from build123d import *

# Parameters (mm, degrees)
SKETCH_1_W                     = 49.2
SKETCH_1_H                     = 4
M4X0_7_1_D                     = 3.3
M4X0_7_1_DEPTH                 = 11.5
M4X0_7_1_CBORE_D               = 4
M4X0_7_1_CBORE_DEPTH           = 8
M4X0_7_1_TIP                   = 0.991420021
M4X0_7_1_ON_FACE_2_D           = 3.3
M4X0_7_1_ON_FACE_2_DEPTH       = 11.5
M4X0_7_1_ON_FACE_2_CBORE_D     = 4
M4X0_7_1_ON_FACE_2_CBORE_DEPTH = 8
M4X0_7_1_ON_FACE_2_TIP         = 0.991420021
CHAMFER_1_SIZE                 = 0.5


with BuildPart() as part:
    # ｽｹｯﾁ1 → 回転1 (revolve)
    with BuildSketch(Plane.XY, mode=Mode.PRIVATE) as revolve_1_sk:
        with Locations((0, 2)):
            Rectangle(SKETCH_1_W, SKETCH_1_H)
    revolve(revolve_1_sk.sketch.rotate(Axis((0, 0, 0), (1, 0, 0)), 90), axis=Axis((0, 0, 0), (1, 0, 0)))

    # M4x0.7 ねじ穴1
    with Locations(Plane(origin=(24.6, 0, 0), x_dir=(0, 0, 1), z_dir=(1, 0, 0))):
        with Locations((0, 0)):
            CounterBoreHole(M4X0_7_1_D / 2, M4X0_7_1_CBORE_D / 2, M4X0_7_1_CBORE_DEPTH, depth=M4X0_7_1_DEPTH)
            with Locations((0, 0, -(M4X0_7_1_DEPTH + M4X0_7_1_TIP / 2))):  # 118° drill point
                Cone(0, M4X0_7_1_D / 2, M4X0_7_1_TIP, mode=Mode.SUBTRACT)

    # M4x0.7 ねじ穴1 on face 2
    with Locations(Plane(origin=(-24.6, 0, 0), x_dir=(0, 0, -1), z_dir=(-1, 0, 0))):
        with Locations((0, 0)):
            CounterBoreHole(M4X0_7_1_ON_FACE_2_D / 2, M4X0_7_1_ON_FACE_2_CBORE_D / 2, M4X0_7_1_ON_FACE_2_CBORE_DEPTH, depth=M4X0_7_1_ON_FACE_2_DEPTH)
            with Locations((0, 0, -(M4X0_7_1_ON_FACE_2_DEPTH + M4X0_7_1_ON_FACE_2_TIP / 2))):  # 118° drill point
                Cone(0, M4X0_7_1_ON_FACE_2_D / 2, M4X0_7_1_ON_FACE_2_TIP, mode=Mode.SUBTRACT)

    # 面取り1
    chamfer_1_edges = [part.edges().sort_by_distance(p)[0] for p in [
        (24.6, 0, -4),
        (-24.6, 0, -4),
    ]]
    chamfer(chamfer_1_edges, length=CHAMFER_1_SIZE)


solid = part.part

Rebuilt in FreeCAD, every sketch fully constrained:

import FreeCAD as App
import Part
import Sketcher

V = App.Vector


def edges_at(feature, points):
    """Names of the edges that pass closest to the given points."""
    edges = feature.Shape.Edges
    near = lambda p: min(range(len(edges)), key=lambda i: edges[i].distToShape(Part.Vertex(*p))[0])
    return sorted({f"Edge{near(p) + 1}" for p in points})

doc = App.newDocument("Part")
body = doc.addObject("PartDesign::Body", "Body")

sketch1 = body.newObject("Sketcher::SketchObject", "Sketch")
sketch1.AttachmentSupport = (doc.getObject("XY_Plane"), [""])
sketch1.MapMode = "FlatFace"
sketch1.addGeometry(Part.LineSegment(V(-24.6, 4, 0), V(-24.6, 0, 0)), False)
sketch1.addGeometry(Part.LineSegment(V(-24.6, 0, 0), V(24.6, 0, 0)), False)
sketch1.addGeometry(Part.LineSegment(V(24.6, 0, 0), V(24.6, 4, 0)), False)
sketch1.addGeometry(Part.LineSegment(V(24.6, 4, 0), V(-24.6, 4, 0)), False)
sketch1.addConstraint(Sketcher.Constraint("Coincident", 0, 2, 1, 1))
sketch1.addConstraint(Sketcher.Constraint("Coincident", 1, 2, 2, 1))
sketch1.addConstraint(Sketcher.Constraint("Coincident", 2, 2, 3, 1))
sketch1.addConstraint(Sketcher.Constraint("Coincident", 3, 2, 0, 1))
sketch1.addConstraint(Sketcher.Constraint("Vertical", 0))
sketch1.addConstraint(Sketcher.Constraint("Horizontal", 1))
sketch1.addConstraint(Sketcher.Constraint("Vertical", 2))
sketch1.addConstraint(Sketcher.Constraint("Horizontal", 3))
sketch1.addConstraint(Sketcher.Constraint("Symmetric", 0, 2, 1, 2, -1, 1))
sketch1.addConstraint(Sketcher.Constraint("DistanceY", 0, 2, 0, 1, 4.0))
sketch1.addConstraint(Sketcher.Constraint("DistanceX", 1, 1, 1, 2, 49.2))
revolution = body.newObject("PartDesign::Revolution", "Revolution")
revolution.Profile = sketch1
revolution.ReferenceAxis = (sketch1, ["H_Axis"])
revolution.Angle = 360

sketch2 = body.newObject("Sketcher::SketchObject", "Sketch001")
sketch2.AttachmentSupport = (doc.getObject("YZ_Plane"), [""])
sketch2.MapMode = "FlatFace"
sketch2.AttachmentOffset = App.Placement(V(0, 0, 24.6), App.Rotation())
sketch2.addGeometry(Part.Circle(V(0, 0, 0), V(0, 0, 1), 1.65), False)
sketch2.addConstraint(Sketcher.Constraint("Coincident", 0, 3, -1, 1))
sketch2.addConstraint(Sketcher.Constraint("Diameter", 0, 3.3))
doc.recompute()
hole = body.newObject("PartDesign::Hole", "Hole")
hole.Profile = sketch2
hole.ThreadType = "None"
hole.Diameter = 3.3
hole.DepthType = "Dimension"
hole.Depth = 11.5
hole.DrillPoint = "Angled"
hole.DrillPointAngle = 118
hole.HoleCutType = "Counterbore"
hole.HoleCutDiameter = 4
hole.HoleCutDepth = 8

sketch3 = body.newObject("Sketcher::SketchObject", "Sketch002")
sketch3.AttachmentSupport = (doc.getObject("YZ_Plane"), [""])
sketch3.MapMode = "FlatFace"
sketch3.AttachmentOffset = App.Placement(V(0, 0, -24.6), App.Rotation())
sketch3.addGeometry(Part.Circle(V(0, 0, 0), V(0, 0, 1), 1.65), False)
sketch3.addConstraint(Sketcher.Constraint("Coincident", 0, 3, -1, 1))
sketch3.addConstraint(Sketcher.Constraint("Diameter", 0, 3.3))
doc.recompute()
hole2 = body.newObject("PartDesign::Hole", "Hole001")
hole2.Profile = sketch3
hole2.ThreadType = "None"
hole2.Diameter = 3.3
hole2.DepthType = "Dimension"
hole2.Depth = 11.5
hole2.DrillPoint = "Angled"
hole2.DrillPointAngle = 118
hole2.HoleCutType = "Counterbore"
hole2.HoleCutDiameter = 4
hole2.HoleCutDepth = 8
hole2.Reversed = True
doc.recompute()

chamfer = body.newObject("PartDesign::Chamfer", "Chamfer")
chamfer.Base = (hole2, edges_at(hole2, [(24.6, 0, -4), (-24.6, 0, -4)]))
chamfer.Size = 0.5

doc.recompute()
